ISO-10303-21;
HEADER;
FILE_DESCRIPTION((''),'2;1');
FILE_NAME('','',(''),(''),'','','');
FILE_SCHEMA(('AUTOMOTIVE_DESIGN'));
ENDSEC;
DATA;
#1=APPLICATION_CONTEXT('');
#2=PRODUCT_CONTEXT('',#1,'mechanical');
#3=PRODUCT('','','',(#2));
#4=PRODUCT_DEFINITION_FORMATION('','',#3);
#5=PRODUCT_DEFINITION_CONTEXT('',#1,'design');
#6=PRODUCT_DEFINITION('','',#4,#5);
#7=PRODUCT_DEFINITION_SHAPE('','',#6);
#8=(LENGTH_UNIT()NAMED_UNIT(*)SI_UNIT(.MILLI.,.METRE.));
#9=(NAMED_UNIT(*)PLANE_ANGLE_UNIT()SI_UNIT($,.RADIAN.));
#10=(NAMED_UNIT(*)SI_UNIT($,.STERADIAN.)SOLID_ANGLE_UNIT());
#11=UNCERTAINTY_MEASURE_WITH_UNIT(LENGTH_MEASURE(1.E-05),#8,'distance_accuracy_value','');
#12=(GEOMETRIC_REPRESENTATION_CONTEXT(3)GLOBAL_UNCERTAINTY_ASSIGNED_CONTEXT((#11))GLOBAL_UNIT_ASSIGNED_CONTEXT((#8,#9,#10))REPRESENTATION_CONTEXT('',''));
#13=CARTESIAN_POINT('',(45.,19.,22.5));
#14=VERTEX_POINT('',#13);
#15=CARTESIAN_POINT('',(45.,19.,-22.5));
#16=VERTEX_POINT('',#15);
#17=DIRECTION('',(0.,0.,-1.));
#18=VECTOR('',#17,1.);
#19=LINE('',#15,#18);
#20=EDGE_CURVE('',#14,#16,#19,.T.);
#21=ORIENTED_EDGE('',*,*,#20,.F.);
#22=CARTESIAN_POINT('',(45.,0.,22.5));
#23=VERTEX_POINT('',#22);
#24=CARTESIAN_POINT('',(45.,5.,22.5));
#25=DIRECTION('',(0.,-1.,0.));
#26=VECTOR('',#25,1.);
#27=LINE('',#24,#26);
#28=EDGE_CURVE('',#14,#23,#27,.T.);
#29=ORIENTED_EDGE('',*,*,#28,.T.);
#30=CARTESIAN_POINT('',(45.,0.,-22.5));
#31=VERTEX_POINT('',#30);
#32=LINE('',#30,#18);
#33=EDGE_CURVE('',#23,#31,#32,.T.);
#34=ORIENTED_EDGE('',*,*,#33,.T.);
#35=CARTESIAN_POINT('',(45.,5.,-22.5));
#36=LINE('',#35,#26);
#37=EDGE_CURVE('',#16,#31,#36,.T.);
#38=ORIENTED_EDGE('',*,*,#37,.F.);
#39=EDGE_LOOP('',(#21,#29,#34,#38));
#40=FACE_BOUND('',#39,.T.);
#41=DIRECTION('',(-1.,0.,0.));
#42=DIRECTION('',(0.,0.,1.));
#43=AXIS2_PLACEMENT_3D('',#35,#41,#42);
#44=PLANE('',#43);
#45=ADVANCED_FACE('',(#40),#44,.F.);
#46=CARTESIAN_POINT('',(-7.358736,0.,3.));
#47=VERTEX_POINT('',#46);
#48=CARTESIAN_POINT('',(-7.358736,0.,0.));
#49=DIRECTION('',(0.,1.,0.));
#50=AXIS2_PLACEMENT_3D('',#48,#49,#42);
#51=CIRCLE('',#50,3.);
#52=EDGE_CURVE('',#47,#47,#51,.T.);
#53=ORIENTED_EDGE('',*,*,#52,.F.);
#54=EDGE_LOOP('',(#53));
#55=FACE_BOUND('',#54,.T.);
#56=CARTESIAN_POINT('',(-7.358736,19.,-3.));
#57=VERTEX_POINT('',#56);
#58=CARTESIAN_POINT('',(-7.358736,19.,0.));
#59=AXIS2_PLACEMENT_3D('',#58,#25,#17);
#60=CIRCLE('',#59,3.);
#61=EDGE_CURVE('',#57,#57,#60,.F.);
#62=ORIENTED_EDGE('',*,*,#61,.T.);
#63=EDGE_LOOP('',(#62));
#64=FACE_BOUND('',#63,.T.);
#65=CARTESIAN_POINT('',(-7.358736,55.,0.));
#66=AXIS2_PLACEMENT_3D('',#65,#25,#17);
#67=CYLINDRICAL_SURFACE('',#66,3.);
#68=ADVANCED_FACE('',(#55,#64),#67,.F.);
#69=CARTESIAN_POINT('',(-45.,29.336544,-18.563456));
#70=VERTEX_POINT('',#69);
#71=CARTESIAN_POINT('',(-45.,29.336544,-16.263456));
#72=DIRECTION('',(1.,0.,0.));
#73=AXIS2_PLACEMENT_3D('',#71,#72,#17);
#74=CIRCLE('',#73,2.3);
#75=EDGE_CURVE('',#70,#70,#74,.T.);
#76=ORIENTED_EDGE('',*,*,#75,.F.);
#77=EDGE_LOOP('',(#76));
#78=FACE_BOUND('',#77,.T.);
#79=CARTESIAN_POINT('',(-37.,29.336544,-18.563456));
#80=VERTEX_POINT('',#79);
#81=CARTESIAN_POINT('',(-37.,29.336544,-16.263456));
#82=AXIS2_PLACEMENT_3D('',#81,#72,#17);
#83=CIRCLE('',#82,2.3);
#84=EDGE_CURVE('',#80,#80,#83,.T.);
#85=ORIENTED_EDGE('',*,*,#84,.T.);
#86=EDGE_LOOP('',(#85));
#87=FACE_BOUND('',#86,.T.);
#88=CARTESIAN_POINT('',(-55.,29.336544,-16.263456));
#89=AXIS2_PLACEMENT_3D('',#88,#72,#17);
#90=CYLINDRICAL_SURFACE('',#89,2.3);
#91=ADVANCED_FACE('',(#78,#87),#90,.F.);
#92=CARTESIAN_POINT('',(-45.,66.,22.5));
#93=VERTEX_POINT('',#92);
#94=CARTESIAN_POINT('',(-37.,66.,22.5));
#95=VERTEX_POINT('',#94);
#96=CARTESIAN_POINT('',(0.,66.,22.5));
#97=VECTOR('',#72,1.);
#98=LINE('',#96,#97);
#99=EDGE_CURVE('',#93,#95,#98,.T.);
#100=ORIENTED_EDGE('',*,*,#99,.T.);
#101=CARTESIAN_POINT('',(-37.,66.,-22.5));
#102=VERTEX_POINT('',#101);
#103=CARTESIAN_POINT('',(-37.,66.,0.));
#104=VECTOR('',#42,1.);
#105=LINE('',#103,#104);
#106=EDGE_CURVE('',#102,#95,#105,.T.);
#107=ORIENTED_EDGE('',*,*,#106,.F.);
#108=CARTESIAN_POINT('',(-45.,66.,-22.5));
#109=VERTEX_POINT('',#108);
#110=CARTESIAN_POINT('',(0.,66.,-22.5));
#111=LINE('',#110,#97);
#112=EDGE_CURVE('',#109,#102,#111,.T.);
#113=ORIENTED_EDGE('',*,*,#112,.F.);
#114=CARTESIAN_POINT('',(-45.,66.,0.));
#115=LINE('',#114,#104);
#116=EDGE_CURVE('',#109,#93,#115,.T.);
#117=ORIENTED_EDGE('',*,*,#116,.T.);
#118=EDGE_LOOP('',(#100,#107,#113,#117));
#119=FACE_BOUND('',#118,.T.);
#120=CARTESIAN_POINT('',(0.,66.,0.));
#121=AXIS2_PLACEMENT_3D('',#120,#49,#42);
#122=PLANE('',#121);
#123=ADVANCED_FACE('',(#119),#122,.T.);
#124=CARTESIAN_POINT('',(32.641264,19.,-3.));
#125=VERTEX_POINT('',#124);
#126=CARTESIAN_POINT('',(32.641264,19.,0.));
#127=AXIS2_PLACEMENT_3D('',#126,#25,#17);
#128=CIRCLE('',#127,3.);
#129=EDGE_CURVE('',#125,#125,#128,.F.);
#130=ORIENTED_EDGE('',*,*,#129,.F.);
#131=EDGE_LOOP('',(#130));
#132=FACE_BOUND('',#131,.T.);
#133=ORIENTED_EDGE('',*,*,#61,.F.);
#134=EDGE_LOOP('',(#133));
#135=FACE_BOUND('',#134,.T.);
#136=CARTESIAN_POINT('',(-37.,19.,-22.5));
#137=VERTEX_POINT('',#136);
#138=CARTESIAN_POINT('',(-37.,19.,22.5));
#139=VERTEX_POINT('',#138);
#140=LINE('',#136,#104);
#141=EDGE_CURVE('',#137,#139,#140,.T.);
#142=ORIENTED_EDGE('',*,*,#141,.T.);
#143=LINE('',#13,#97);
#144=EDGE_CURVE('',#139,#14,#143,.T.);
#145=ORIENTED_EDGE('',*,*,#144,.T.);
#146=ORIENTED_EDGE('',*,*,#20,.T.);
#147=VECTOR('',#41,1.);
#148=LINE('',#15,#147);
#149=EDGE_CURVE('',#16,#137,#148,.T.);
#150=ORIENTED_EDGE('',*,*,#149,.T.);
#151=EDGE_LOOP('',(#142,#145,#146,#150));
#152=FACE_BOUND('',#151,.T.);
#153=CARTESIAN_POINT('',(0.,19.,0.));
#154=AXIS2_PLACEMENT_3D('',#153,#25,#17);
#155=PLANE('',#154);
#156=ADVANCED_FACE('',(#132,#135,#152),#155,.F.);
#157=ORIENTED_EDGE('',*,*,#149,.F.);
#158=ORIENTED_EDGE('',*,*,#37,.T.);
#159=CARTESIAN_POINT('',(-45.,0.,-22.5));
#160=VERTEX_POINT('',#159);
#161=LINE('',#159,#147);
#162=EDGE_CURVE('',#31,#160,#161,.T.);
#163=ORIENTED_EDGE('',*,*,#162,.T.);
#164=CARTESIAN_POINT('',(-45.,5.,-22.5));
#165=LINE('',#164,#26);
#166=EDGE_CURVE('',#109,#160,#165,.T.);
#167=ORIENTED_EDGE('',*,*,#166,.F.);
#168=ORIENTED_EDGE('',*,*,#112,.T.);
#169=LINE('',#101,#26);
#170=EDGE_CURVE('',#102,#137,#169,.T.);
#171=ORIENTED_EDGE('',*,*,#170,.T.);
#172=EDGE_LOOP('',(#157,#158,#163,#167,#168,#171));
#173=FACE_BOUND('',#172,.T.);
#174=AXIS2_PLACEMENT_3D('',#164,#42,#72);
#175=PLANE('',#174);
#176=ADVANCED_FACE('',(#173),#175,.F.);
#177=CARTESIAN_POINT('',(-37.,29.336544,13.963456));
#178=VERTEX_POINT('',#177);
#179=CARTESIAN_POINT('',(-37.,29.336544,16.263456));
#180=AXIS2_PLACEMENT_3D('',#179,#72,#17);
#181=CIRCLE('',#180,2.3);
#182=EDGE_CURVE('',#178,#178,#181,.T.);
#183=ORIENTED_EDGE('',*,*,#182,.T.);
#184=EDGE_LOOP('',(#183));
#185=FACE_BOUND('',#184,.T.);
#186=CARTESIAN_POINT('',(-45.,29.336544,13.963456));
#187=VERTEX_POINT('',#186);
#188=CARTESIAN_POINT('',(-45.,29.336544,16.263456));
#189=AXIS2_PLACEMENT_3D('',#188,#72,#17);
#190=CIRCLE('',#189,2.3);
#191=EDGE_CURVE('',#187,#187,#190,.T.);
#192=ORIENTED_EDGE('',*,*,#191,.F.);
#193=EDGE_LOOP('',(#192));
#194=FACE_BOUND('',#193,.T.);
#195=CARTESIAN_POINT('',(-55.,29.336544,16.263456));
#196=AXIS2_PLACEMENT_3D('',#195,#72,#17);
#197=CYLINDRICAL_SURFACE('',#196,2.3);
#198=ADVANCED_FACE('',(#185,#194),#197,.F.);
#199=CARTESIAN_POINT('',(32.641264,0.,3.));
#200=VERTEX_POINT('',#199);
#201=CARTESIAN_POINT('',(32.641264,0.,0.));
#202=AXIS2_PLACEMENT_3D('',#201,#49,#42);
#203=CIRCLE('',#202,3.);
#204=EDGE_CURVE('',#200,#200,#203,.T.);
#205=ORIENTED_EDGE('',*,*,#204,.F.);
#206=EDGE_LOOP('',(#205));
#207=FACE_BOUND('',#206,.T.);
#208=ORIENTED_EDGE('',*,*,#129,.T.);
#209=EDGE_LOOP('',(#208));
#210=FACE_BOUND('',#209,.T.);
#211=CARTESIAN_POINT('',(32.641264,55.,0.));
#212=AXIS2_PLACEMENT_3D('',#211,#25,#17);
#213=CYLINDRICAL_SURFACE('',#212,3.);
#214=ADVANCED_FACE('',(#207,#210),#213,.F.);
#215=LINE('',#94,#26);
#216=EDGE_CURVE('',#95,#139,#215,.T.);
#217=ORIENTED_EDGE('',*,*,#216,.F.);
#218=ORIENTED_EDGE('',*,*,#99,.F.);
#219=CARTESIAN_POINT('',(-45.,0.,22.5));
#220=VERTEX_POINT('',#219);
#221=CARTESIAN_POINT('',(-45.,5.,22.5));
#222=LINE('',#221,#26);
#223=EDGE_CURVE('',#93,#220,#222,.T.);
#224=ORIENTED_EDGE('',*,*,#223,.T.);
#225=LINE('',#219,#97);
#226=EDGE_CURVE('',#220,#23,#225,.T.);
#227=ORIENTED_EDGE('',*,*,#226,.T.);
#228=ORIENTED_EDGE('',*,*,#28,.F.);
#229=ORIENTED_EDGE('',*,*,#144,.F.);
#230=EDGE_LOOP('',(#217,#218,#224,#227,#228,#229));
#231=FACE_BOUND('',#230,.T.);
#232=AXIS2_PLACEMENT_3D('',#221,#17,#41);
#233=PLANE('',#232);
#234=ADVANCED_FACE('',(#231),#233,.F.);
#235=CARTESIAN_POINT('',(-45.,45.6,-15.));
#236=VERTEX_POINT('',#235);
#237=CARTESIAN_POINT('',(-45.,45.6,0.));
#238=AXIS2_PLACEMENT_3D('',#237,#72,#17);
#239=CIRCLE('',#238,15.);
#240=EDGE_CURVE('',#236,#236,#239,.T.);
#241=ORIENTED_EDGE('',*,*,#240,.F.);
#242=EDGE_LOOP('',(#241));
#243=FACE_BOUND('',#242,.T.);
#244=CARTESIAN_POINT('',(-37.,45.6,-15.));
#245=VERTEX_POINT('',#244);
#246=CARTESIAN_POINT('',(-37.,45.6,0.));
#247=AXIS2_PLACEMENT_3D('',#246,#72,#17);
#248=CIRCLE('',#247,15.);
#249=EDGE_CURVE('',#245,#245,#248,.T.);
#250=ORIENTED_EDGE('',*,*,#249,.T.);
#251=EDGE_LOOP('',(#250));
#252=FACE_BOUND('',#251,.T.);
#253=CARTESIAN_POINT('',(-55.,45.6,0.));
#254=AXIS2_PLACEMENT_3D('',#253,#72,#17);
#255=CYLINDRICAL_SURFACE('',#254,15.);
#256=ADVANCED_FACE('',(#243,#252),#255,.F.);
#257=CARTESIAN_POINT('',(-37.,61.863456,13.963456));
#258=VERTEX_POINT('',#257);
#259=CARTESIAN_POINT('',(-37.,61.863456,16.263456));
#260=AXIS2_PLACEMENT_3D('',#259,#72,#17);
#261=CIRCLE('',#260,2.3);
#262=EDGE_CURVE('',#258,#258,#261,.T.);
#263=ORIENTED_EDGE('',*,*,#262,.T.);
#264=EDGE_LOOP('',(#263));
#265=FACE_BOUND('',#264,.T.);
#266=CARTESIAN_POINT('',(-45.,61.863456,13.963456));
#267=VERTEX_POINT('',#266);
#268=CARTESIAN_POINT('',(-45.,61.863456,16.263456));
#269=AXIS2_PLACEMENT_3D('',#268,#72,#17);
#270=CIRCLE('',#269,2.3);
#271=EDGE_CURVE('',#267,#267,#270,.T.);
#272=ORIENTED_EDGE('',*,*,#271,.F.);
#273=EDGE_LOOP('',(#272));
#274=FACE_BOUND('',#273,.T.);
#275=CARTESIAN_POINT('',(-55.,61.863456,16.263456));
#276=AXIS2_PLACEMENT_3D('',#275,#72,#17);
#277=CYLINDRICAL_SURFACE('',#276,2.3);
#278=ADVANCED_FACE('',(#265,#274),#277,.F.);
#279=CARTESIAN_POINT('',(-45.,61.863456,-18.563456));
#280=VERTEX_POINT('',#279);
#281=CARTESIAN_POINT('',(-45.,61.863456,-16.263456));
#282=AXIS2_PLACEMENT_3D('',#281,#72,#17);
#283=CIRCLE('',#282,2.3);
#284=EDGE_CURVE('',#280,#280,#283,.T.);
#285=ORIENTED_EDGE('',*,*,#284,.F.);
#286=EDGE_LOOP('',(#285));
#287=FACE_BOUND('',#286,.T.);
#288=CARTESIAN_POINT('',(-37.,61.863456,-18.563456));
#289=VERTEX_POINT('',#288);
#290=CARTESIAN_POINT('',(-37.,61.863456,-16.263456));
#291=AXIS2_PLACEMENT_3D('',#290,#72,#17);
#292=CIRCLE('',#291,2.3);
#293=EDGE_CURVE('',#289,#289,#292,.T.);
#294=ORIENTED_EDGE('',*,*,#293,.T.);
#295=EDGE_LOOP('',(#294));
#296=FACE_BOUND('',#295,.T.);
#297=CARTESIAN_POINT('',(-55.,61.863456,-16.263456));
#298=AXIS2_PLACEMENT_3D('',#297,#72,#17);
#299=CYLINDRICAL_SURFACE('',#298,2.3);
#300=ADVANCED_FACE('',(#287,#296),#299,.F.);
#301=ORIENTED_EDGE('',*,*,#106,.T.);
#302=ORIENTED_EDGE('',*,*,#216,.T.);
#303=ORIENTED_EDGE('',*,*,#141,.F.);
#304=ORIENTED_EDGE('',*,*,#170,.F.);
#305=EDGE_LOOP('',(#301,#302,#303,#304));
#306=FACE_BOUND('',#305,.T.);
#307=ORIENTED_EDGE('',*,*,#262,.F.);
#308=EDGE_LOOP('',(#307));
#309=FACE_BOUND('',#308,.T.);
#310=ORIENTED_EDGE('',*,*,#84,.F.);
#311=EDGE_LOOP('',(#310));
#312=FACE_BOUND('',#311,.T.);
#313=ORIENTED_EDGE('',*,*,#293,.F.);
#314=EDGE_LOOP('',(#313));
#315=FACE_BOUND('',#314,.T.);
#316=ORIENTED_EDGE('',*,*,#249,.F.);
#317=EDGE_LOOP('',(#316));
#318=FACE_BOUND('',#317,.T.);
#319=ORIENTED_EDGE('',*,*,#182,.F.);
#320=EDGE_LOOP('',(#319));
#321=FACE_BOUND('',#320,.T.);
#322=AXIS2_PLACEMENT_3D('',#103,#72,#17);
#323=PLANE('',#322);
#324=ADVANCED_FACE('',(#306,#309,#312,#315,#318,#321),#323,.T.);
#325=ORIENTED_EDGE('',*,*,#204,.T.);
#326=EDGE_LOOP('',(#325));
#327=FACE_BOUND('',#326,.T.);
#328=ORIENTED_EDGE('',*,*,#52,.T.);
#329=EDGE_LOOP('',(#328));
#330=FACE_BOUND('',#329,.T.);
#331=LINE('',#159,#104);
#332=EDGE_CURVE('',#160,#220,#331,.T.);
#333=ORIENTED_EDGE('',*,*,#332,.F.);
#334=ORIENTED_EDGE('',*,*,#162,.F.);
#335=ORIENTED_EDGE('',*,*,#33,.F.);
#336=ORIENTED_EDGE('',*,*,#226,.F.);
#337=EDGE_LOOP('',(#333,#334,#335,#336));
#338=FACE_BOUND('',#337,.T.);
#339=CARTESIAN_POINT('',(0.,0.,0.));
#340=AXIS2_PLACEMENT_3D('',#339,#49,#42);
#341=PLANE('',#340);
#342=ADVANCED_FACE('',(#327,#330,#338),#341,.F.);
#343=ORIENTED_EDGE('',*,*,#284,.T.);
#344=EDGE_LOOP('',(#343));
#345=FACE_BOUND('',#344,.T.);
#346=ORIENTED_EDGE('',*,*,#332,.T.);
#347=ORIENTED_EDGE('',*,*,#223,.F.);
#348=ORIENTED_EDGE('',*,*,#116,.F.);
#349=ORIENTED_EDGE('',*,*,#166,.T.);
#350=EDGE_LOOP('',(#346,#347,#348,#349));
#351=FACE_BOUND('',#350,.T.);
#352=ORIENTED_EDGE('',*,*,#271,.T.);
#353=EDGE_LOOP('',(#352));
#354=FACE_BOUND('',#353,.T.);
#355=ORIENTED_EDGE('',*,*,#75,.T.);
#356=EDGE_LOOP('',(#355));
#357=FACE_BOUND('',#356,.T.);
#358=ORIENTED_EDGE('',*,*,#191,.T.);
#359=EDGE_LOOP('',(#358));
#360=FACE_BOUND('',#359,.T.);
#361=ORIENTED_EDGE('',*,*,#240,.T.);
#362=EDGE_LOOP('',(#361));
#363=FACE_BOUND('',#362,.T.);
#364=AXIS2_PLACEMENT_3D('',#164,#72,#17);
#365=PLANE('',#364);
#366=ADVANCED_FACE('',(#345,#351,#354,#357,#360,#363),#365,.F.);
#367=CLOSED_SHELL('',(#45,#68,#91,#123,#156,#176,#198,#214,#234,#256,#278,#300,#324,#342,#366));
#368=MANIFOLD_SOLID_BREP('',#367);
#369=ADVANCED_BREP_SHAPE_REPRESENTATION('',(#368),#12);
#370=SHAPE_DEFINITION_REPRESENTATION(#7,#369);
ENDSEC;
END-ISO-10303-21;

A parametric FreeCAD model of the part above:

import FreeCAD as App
import Part
import Sketcher
from FreeCAD import Vector

doc = App.newDocument("Part")
body = doc.addObject("PartDesign::Body", "Body")

sketch1 = body.newObject("Sketcher::SketchObject", "Sketch")
sketch1.AttachmentSupport = (doc.getObject("XZ_Plane"), [""])
sketch1.MapMode = "FlatFace"
sketch1.addGeometry(Part.LineSegment(Vector(-45, -22, 0), Vector(-45, 22, 0)), False)
sketch1.addGeometry(Part.LineSegment(Vector(-45, 22, 0), Vector(45, 22, 0)), False)
sketch1.addGeometry(Part.LineSegment(Vector(45, 22, 0), Vector(45, -22, 0)), False)
sketch1.addGeometry(Part.LineSegment(Vector(45, -22, 0), Vector(-45, -22, 0)), False)
sketch1.addConstraint(Sketcher.Constraint("Coincident", 0, 2, 1, 1))
sketch1.addConstraint(Sketcher.Constraint("Coincident", 1, 2, 2, 1))
sketch1.addConstraint(Sketcher.Constraint("Coincident", 2, 2, 3, 1))
sketch1.addConstraint(Sketcher.Constraint("Coincident", 3, 2, 0, 1))
sketch1.addConstraint(Sketcher.Constraint("Vertical", 0))
sketch1.addConstraint(Sketcher.Constraint("Horizontal", 1))
sketch1.addConstraint(Sketcher.Constraint("Vertical", 2))
sketch1.addConstraint(Sketcher.Constraint("Horizontal", 3))
sketch1.addConstraint(Sketcher.Constraint("Symmetric", 0, 2, 2, 2, -1, 1))
sketch1.addConstraint(Sketcher.Constraint("DistanceX", 1, 1, 1, 2, 90.0))
sketch1.addConstraint(Sketcher.Constraint("DistanceY", 0, 1, 0, 2, 45.0))
pad1 = body.newObject("PartDesign::Pad", "Pad")
pad1.Profile = sketch1
pad1.Length = 5
pad1.Reversed = True

sketch2 = body.newObject("Sketcher::SketchObject", "Sketch001")
sketch2.AttachmentSupport = (doc.getObject("XZ_Plane"), [""])
sketch2.MapMode = "FlatFace"
sketch2.addGeometry(Part.LineSegment(Vector(-45, -22, 0), Vector(-45, 22, 0)), False)
sketch2.addGeometry(Part.LineSegment(Vector(-45, 22, 0), Vector(-37, 22, 0)), False)
sketch2.addGeometry(Part.LineSegment(Vector(-37, 22, 0), Vector(-37, -22, 0)), False)
sketch2.addGeometry(Part.LineSegment(Vector(-37, -22, 0), Vector(-45, -22, 0)), False)
sketch2.addConstraint(Sketcher.Constraint("Coincident", 0, 2, 1, 1))
sketch2.addConstraint(Sketcher.Constraint("Coincident", 1, 2, 2, 1))
sketch2.addConstraint(Sketcher.Constraint("Coincident", 2, 2, 3, 1))
sketch2.addConstraint(Sketcher.Constraint("Coincident", 3, 2, 0, 1))
sketch2.addConstraint(Sketcher.Constraint("Vertical", 0))
sketch2.addConstraint(Sketcher.Constraint("Horizontal", 1))
sketch2.addConstraint(Sketcher.Constraint("Vertical", 2))
sketch2.addConstraint(Sketcher.Constraint("Horizontal", 3))
sketch2.addConstraint(Sketcher.Constraint("DistanceX", 1, 1, 1, 2, 8.0))
sketch2.addConstraint(Sketcher.Constraint("DistanceY", 0, 1, 0, 2, 45.0))
sketch2.addConstraint(Sketcher.Constraint("DistanceX", 0, 2, -1, 1, 45.0))
sketch2.addConstraint(Sketcher.Constraint("DistanceY", -1, 1, 0, 2, 22.5))
pad2 = body.newObject("PartDesign::Pad", "Pad001")
pad2.Profile = sketch2
pad2.Length = 66
pad2.Reversed = True

sketch3 = body.newObject("Sketcher::SketchObject", "Sketch002")
sketch3.AttachmentSupport = (doc.getObject("XZ_Plane"), [""])
sketch3.MapMode = "FlatFace"
sketch3.addGeometry(Part.LineSegment(Vector(-37, -22, 0), Vector(-37, 22, 0)), False)
sketch3.addGeometry(Part.LineSegment(Vector(-37, 22, 0), Vector(45, 22, 0)), False)
sketch3.addGeometry(Part.LineSegment(Vector(45, 22, 0), Vector(45, -22, 0)), False)
sketch3.addGeometry(Part.LineSegment(Vector(45, -22, 0), Vector(-37, -22, 0)), False)
sketch3.addConstraint(Sketcher.Constraint("Coincident", 0, 2, 1, 1))
sketch3.addConstraint(Sketcher.Constraint("Coincident", 1, 2, 2, 1))
sketch3.addConstraint(Sketcher.Constraint("Coincident", 2, 2, 3, 1))
sketch3.addConstraint(Sketcher.Constraint("Coincident", 3, 2, 0, 1))
sketch3.addConstraint(Sketcher.Constraint("Vertical", 0))
sketch3.addConstraint(Sketcher.Constraint("Horizontal", 1))
sketch3.addConstraint(Sketcher.Constraint("Vertical", 2))
sketch3.addConstraint(Sketcher.Constraint("Horizontal", 3))
sketch3.addConstraint(Sketcher.Constraint("DistanceX", 1, 1, 1, 2, 82.0))
sketch3.addConstraint(Sketcher.Constraint("DistanceY", 0, 1, 0, 2, 45.0))
sketch3.addConstraint(Sketcher.Constraint("DistanceX", 0, 2, -1, 1, 37.0))
sketch3.addConstraint(Sketcher.Constraint("DistanceY", -1, 1, 0, 2, 22.5))
pad3 = body.newObject("PartDesign::Pad", "Pad002")
pad3.Profile = sketch3
pad3.Length = 19
pad3.Reversed = True

sketch4 = body.newObject("Sketcher::SketchObject", "Sketch003")
sketch4.AttachmentSupport = (doc.getObject("YZ_Plane"), [""])
sketch4.MapMode = "FlatFace"
sketch4.addGeometry(Part.Circle(Vector(45.6, 0, 0), Vector(0, 0, 1), 15), False)
sketch4.addGeometry(Part.Circle(Vector(61.9, -16.3, 0), Vector(0, 0, 1), 2.3), False)
sketch4.addGeometry(Part.Circle(Vector(29.3, -16.3, 0), Vector(0, 0, 1), 2.3), False)
sketch4.addGeometry(Part.Circle(Vector(29.3, 16.3, 0), Vector(0, 0, 1), 2.3), False)
sketch4.addGeometry(Part.Circle(Vector(61.9, 16.3, 0), Vector(0, 0, 1), 2.3), False)
sketch4.addConstraint(Sketcher.Constraint("Equal", 1, 2))
sketch4.addConstraint(Sketcher.Constraint("Equal", 2, 3))
sketch4.addConstraint(Sketcher.Constraint("Equal", 3, 4))
sketch4.addConstraint(Sketcher.Constraint("Symmetric", 2, 3, 3, 3, -1))
sketch4.addConstraint(Sketcher.Constraint("Symmetric", 1, 3, 4, 3, -1))
sketch4.addConstraint(Sketcher.Constraint("PointOnObject", 0, 3, -1))
sketch4.addConstraint(Sketcher.Constraint("Horizontal", 1, 3, 2, 3))
sketch4.addConstraint(Sketcher.Constraint("Diameter", 0, 30.0))
sketch4.addConstraint(Sketcher.Constraint("Diameter", 1, 4.6))
sketch4.addConstraint(Sketcher.Constraint("DistanceX", -1, 1, 0, 3, 45.6))
sketch4.addConstraint(Sketcher.Constraint("DistanceX", 2, 3, 1, 3, 32.526912))
sketch4.addConstraint(Sketcher.Constraint("DistanceY", 2, 3, 3, 3, 32.526912))
sketch4.addConstraint(Sketcher.Constraint("DistanceX", -1, 1, 1, 3, 61.863456))
pocket1 = body.newObject("PartDesign::Pocket", "Pocket")
pocket1.Profile = sketch4
pocket1.Length = 55

sketch5 = body.newObject("Sketcher::SketchObject", "Sketch004")
sketch5.AttachmentSupport = (doc.getObject("XZ_Plane"), [""])
sketch5.MapMode = "FlatFace"
sketch5.addGeometry(Part.Circle(Vector(32.6, 0, 0), Vector(0, 0, 1), 3), False)
sketch5.addGeometry(Part.Circle(Vector(-7.4, 0, 0), Vector(0, 0, 1), 3), False)
sketch5.addConstraint(Sketcher.Constraint("Equal", 0, 1))
sketch5.addConstraint(Sketcher.Constraint("PointOnObject", 0, 3, -1))
sketch5.addConstraint(Sketcher.Constraint("PointOnObject", 1, 3, -1))
sketch5.addConstraint(Sketcher.Constraint("Diameter", 0, 6.0))
sketch5.addConstraint(Sketcher.Constraint("DistanceX", 1, 3, 0, 3, 40.0))
sketch5.addConstraint(Sketcher.Constraint("DistanceX", -1, 1, 0, 3, 32.641264))
pocket2 = body.newObject("PartDesign::Pocket", "Pocket001")
pocket2.Profile = sketch5
pocket2.Length = 55

doc.recompute()
